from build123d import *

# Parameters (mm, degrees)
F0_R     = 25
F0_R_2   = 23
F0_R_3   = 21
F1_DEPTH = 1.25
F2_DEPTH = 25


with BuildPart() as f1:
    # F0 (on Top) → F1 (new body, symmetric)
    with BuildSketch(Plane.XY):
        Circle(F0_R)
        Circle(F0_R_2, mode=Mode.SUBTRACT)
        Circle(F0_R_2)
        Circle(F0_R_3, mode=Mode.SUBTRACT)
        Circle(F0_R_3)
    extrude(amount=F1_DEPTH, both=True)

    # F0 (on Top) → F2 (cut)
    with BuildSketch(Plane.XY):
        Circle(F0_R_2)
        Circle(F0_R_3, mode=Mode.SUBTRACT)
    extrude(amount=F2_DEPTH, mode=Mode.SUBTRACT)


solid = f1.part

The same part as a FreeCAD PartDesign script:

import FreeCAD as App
import Part
import Sketcher
Q = App.Units.Quantity

doc = App.newDocument("Part")
body = doc.addObject("PartDesign::Body", "Body")

sketch1 = body.newObject("Sketcher::SketchObject", "Sketch")
sketch1.AttachmentSupport = (doc.getObject("XY_Plane"), [""])
sketch1.MapMode = "FlatFace"
sketch1.addGeometry(Part.Circle(App.Vector(0, 0, 0), App.Vector(0, 0, 1), 25), False)
sketch1.addConstraint([
    Sketcher.Constraint("Coincident", 0, 3, -1, 1),
    Sketcher.Constraint("Diameter", 0, Q("50 mm")),
])
pad1 = body.newObject("PartDesign::Pad", "Pad")
pad1.Profile = sketch1
pad1.Length = 2.5
pad1.Midplane = True

sketch2 = body.newObject("Sketcher::SketchObject", "Sketch001")
sketch2.AttachmentSupport = (doc.getObject("XY_Plane"), [""])
sketch2.MapMode = "FlatFace"
sketch2.addGeometry([
    Part.Circle(App.Vector(0, 0, 0), App.Vector(0, 0, 1), 23),
    Part.Circle(App.Vector(0, 0, 0), App.Vector(0, 0, 1), 21),
], False)
sketch2.addConstraint([
    Sketcher.Constraint("Coincident", 0, 3, -1, 1),
    Sketcher.Constraint("Coincident", 1, 3, -1, 1),
    Sketcher.Constraint("Diameter", 0, Q("46 mm")),
    Sketcher.Constraint("Diameter", 1, Q("42 mm")),
])
pocket1 = body.newObject("PartDesign::Pocket", "Pocket")
pocket1.Profile = sketch2
pocket1.Length = 25
pocket1.Reversed = True

doc.recompute()
